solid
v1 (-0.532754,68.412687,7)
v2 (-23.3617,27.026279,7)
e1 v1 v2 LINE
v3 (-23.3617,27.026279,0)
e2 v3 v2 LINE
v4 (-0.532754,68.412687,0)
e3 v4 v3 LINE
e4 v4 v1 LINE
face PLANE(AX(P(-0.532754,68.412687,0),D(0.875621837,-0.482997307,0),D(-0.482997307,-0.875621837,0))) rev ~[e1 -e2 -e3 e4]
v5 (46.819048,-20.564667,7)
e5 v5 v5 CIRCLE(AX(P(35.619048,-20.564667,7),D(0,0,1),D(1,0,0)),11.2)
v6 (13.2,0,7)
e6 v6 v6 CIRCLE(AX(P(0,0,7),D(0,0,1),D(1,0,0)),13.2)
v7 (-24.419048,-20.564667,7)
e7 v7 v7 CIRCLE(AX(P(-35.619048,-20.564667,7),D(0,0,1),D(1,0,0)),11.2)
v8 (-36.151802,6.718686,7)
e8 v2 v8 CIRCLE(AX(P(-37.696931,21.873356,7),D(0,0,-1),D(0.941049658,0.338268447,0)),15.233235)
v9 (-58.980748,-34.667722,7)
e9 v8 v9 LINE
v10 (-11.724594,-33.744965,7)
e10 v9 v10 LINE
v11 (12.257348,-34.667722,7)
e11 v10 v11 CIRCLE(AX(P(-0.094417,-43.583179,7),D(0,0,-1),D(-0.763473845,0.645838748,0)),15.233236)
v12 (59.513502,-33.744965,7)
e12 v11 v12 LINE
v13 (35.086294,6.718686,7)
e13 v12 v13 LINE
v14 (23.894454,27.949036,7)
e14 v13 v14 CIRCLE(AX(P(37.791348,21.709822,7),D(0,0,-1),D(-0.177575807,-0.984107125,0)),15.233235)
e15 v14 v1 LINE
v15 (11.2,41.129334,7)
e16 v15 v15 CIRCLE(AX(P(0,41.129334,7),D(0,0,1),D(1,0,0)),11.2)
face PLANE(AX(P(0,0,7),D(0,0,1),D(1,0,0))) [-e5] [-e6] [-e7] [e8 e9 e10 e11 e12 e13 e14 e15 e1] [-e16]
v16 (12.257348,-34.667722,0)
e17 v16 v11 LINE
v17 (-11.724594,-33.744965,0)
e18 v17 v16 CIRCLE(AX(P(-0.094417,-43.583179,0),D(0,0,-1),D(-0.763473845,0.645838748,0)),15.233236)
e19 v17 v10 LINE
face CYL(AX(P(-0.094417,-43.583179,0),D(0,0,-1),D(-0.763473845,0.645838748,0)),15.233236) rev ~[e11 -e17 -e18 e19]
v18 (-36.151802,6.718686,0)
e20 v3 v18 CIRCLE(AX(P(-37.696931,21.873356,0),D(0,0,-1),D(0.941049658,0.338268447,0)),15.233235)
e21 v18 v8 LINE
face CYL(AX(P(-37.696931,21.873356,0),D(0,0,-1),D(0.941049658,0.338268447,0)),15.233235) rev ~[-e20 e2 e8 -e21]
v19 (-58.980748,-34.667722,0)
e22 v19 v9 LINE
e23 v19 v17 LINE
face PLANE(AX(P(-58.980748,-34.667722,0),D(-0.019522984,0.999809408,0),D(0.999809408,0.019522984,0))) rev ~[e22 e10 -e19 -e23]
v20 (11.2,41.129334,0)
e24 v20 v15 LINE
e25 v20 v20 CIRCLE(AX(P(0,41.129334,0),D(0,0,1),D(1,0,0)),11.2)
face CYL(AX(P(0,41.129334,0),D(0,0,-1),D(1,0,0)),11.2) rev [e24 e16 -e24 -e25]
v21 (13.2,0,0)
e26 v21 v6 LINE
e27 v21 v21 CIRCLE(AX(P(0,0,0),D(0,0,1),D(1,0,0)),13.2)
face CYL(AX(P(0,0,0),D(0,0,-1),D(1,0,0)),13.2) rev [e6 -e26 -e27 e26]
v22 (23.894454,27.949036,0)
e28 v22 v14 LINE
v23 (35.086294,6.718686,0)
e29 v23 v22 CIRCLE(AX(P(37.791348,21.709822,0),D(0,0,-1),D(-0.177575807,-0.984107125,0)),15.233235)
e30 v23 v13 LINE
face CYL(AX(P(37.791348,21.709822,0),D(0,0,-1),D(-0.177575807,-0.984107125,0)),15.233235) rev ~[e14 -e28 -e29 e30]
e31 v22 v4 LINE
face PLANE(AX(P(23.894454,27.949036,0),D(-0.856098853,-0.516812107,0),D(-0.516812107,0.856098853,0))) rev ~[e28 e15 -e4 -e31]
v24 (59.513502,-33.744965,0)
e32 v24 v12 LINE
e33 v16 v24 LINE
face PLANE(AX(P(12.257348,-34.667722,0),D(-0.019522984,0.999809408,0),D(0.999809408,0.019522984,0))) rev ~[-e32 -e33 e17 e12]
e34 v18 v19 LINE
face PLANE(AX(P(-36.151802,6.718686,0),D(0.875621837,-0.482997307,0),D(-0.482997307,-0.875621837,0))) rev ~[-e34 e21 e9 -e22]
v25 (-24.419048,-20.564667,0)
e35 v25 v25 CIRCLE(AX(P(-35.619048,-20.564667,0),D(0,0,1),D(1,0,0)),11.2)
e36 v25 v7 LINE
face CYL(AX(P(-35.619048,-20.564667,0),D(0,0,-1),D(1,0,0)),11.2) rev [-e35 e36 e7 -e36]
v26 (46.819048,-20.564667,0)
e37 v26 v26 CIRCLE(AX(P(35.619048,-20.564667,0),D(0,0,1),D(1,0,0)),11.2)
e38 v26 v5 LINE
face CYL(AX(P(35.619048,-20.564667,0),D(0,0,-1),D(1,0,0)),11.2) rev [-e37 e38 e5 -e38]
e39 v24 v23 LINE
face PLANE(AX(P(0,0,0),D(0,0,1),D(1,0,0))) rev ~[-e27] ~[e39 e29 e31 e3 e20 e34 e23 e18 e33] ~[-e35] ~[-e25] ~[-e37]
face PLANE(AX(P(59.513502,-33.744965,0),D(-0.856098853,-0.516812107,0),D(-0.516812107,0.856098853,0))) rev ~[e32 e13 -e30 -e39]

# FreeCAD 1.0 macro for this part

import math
import FreeCAD as App
import Part
import Sketcher

doc = App.newDocument("Part")
body = doc.addObject("PartDesign::Body", "Body")

# Sketch on XY plane
sketch1 = doc.addObject("Sketcher::SketchObject", "Sketch")
body.addObject(sketch1)
sketch1.AttachmentSupport = (doc.XY_Plane, [""])
sketch1.MapMode = "FlatFace"
sketch1.addGeometry([
    Part.LineSegment(App.Vector(24, 28, 0), App.Vector(-1, 68, 0)),  # 0
    Part.LineSegment(App.Vector(-1, 68, 0), App.Vector(-23, 27, 0)),  # 1
    Part.ArcOfCircle(Part.Circle(App.Vector(-38, 22, 0), App.Vector(0, 0, 1), 15), math.radians(-84), math.radians(20)),  # 2
    Part.LineSegment(App.Vector(-36, 7, 0), App.Vector(-59, -35, 0)),  # 3
    Part.LineSegment(App.Vector(-59, -35, 0), App.Vector(-12, -34, 0)),  # 4
    Part.ArcOfCircle(Part.Circle(App.Vector(0, -44, 0), App.Vector(0, 0, 1), 15), math.radians(36), math.radians(140)),  # 5
    Part.LineSegment(App.Vector(12, -35, 0), App.Vector(60, -34, 0)),  # 6
    Part.LineSegment(App.Vector(60, -34, 0), App.Vector(35, 7, 0)),  # 7
    Part.ArcOfCircle(Part.Circle(App.Vector(38, 22, 0), App.Vector(0, 0, 1), 15), math.radians(156), math.radians(260)),  # 8
    Part.Circle(App.Vector(-36, -21, 0), App.Vector(0, 0, 1), 11),  # 9
    Part.Circle(App.Vector(36, -21, 0), App.Vector(0, 0, 1), 11),  # 10
    Part.Circle(App.Vector(0, 0, 0), App.Vector(0, 0, 1), 13),  # 11
    Part.Circle(App.Vector(0, 41, 0), App.Vector(0, 0, 1), 11),  # 12
], False)
sketch1.addConstraint([
    Sketcher.Constraint("Coincident", 0, 2, 1, 1),
    Sketcher.Constraint("Coincident", 1, 2, 2, 2),
    Sketcher.Constraint("Coincident", 2, 1, 3, 1),
    Sketcher.Constraint("Coincident", 3, 2, 4, 1),
    Sketcher.Constraint("Coincident", 4, 2, 5, 2),
    Sketcher.Constraint("Coincident", 5, 1, 6, 1),
    Sketcher.Constraint("Coincident", 6, 2, 7, 1),
    Sketcher.Constraint("Coincident", 7, 2, 8, 2),
    Sketcher.Constraint("Coincident", 8, 1, 0, 1),
    Sketcher.Constraint("Coincident", 11, 3, -1, 1),
    Sketcher.Constraint("Equal", 2, 5),
    Sketcher.Constraint("Equal", 5, 8),
    Sketcher.Constraint("Equal", 9, 10),
    Sketcher.Constraint("Equal", 10, 12),
    Sketcher.Constraint("Symmetric", 9, 3, 10, 3, -2),
    Sketcher.Constraint("PointOnObject", 12, 3, -2),
    Sketcher.Constraint("Parallel", 1, 3),
    Sketcher.Constraint("Parallel", 4, 6),
    Sketcher.Constraint("Parallel", 0, 7),
    Sketcher.Constraint("Horizontal", 3, 2, 5, 1),
    Sketcher.Constraint("Horizontal", 4, 2, 6, 2),
    Sketcher.Constraint("Horizontal", 2, 1, 7, 2),
    Sketcher.Constraint("Equal", 0, 1),
    Sketcher.Constraint("Equal", 1, 3),
    Sketcher.Constraint("Equal", 3, 4),
    Sketcher.Constraint("Equal", 6, 7),
    Sketcher.Constraint("Diameter", 9, 22.4),
    Sketcher.Constraint("Diameter", 11, 26.4),
    Sketcher.Constraint("Radius", 2, 15.233235),
    Sketcher.Constraint("DistanceY", 5, 3, 8, 3, 65.293),
    Sketcher.Constraint("DistanceY", 9, 3, 12, 3, 61.694001),
    Sketcher.Constraint("DistanceX", 1, 2, -1, 1, 23.3617),
    Sketcher.Constraint("DistanceX", 10, 3, 8, 3, 2.1723),
    Sketcher.Constraint("DistanceX", 3, 2, 9, 3, 23.3617),
    Sketcher.Constraint("DistanceX", 5, 1, 10, 3, 23.3617),
    Sketcher.Constraint("DistanceY", 8, 1, 12, 3, 13.180298),
    Sketcher.Constraint("DistanceX", 2, 3, -1, 1, 37.696931),
    Sketcher.Constraint("DistanceY", 5, 3, -1, 1, 43.583179),
    Sketcher.Constraint("DistanceX", -1, 1, 8, 3, 37.791348),
    Sketcher.Constraint("DistanceY", -1, 1, 1, 2, 27.026279),
])
pad1 = doc.addObject("PartDesign::Pad", "Pad")
body.addObject(pad1)
pad1.Profile = sketch1
pad1.Length = 7

doc.recompute()
